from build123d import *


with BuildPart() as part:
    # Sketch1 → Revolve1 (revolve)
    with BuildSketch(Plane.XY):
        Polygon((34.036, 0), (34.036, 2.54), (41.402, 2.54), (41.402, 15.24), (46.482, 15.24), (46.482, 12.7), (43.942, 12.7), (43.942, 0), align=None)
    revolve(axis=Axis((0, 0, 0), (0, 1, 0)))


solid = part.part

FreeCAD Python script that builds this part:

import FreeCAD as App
import Part
import Sketcher

V = App.Vector
Q = App.Units.Quantity

doc = App.newDocument("Part")
body = doc.addObject("PartDesign::Body", "Body")

# Sketch on XY plane
sketch1 = body.newObject("Sketcher::SketchObject", "Sketch")
sketch1.AttachmentSupport = (doc.getObject("XY_Plane"), [""])
sketch1.MapMode = "FlatFace"
sketch1.addGeometry(Part.LineSegment(V(34, 2.5, 0), V(34, 0, 0)), False)
sketch1.addGeometry(Part.LineSegment(V(34, 0, 0), V(43.9, 0, 0)), False)
sketch1.addGeometry(Part.LineSegment(V(43.9, 0, 0), V(43.9, 12.7, 0)), False)
sketch1.addGeometry(Part.LineSegment(V(43.9, 12.7, 0), V(46.5, 12.7, 0)), False)
sketch1.addGeometry(Part.LineSegment(V(46.5, 12.7, 0), V(46.5, 15.2, 0)), False)
sketch1.addGeometry(Part.LineSegment(V(46.5, 15.2, 0), V(41.4, 15.2, 0)), False)
sketch1.addGeometry(Part.LineSegment(V(41.4, 15.2, 0), V(41.4, 2.5, 0)), False)
sketch1.addGeometry(Part.LineSegment(V(41.4, 2.5, 0), V(34, 2.5, 0)), False)
sketch1.addConstraint(Sketcher.Constraint("Coincident", 0, 2, 1, 1))
sketch1.addConstraint(Sketcher.Constraint("Coincident", 1, 2, 2, 1))
sketch1.addConstraint(Sketcher.Constraint("Coincident", 2, 2, 3, 1))
sketch1.addConstraint(Sketcher.Constraint("Coincident", 3, 2, 4, 1))
sketch1.addConstraint(Sketcher.Constraint("Coincident", 4, 2, 5, 1))
sketch1.addConstraint(Sketcher.Constraint("Coincident", 5, 2, 6, 1))
sketch1.addConstraint(Sketcher.Constraint("Coincident", 6, 2, 7, 1))
sketch1.addConstraint(Sketcher.Constraint("Coincident", 7, 2, 0, 1))
sketch1.addConstraint(Sketcher.Constraint("Vertical", 0))
sketch1.addConstraint(Sketcher.Constraint("Horizontal", 1))
sketch1.addConstraint(Sketcher.Constraint("Vertical", 2))
sketch1.addConstraint(Sketcher.Constraint("Horizontal", 3))
sketch1.addConstraint(Sketcher.Constraint("Vertical", 4))
sketch1.addConstraint(Sketcher.Constraint("Horizontal", 5))
sketch1.addConstraint(Sketcher.Constraint("Vertical", 6))
sketch1.addConstraint(Sketcher.Constraint("Horizontal", 7))
sketch1.addConstraint(Sketcher.Constraint("PointOnObject", 0, 2, -1))
sketch1.addConstraint(Sketcher.Constraint("Equal", 3, 0))
sketch1.addConstraint(Sketcher.Constraint("Equal", 0, 4))
sketch1.addConstraint(Sketcher.Constraint("DistanceX", 3, 1, 3, 2, Q("0.1 in")))
sketch1.addConstraint(Sketcher.Constraint("DistanceX", 5, 2, 5, 1, Q("0.2 in")))
sketch1.addConstraint(Sketcher.Constraint("DistanceY", 2, 1, 2, 2, Q("0.5 in")))
sketch1.addConstraint(Sketcher.Constraint("DistanceX", 1, 1, 1, 2, Q("0.39 in")))
sketch1.addConstraint(Sketcher.Constraint("DistanceX", -1, 1, 0, 2, Q("1.34 in")))
revolution = body.newObject("PartDesign::Revolution", "Revolution")
revolution.Profile = sketch1
revolution.ReferenceAxis = (sketch1, ["V_Axis"])
revolution.Angle = 360

doc.recompute()
